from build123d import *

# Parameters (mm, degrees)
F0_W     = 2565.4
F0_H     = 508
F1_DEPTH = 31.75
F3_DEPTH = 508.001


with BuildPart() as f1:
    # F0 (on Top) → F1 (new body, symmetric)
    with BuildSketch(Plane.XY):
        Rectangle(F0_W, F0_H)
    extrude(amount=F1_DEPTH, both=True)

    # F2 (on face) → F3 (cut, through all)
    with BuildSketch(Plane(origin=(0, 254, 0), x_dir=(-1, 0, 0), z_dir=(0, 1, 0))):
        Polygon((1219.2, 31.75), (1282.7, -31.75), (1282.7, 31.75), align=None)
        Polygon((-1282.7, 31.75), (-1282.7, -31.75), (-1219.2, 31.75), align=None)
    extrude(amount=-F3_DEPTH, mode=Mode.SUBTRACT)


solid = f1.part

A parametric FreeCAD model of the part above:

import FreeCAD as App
import Part
import Sketcher

V = App.Vector
Q = App.Units.Quantity

doc = App.newDocument("Part")
params = doc.addObject("Spreadsheet::Sheet", "Params")
for row, (alias, value) in enumerate([
    ("sketch1_width", "101 in"),
    ("sketch1_height", "20 in"),
    ("pad1_length", "2.5 in"),
    ("sketch2_width", "2.5 in"),
], start=1):
    params.set(f"A{row}", alias)
    params.set(f"B{row}", "=" + value)
    params.setAlias(f"B{row}", alias)

body = doc.addObject("PartDesign::Body", "Body")

# Sketch on XY plane
sketch1 = body.newObject("Sketcher::SketchObject", "Sketch")
sketch1.AttachmentSupport = (doc.getObject("XY_Plane"), [""])
sketch1.MapMode = "FlatFace"
sketch1.addGeometry([
    Part.LineSegment(V(-1283, 254, 0), V(-1283, -254, 0)),
    Part.LineSegment(V(-1283, -254, 0), V(1283, -254, 0)),
    Part.LineSegment(V(1283, -254, 0), V(1283, 254, 0)),
    Part.LineSegment(V(1283, 254, 0), V(-1283, 254, 0)),
], False)
sketch1.addConstraint([
    Sketcher.Constraint("Coincident", 0, 2, 1, 1),
    Sketcher.Constraint("Coincident", 1, 2, 2, 1),
    Sketcher.Constraint("Coincident", 2, 2, 3, 1),
    Sketcher.Constraint("Coincident", 3, 2, 0, 1),
    Sketcher.Constraint("Vertical", 0),
    Sketcher.Constraint("Horizontal", 1),
    Sketcher.Constraint("Vertical", 2),
    Sketcher.Constraint("Horizontal", 3),
    Sketcher.Constraint("Symmetric", 0, 2, 2, 2, -1, 1),
    Sketcher.Constraint("DistanceX", 1, 1, 1, 2, Q("101 in")),
    Sketcher.Constraint("DistanceY", 0, 2, 0, 1, Q("20 in")),
])
sketch1.setExpression("Constraints[9]", "Params.sketch1_width")
sketch1.setExpression("Constraints[10]", "Params.sketch1_height")
pad1 = body.newObject("PartDesign::Pad", "Pad")
pad1.Profile = sketch1
pad1.setExpression("Length", "Params.pad1_length")
pad1.Midplane = True

# Sketch on XZ plane
sketch2 = body.newObject("Sketcher::SketchObject", "Sketch001")
sketch2.AttachmentSupport = (doc.getObject("XZ_Plane"), [""])
sketch2.MapMode = "FlatFace"
sketch2.AttachmentOffset = App.Placement(V(0, 0, -10 * 25.4), App.Rotation())
sketch2.addGeometry([
    Part.LineSegment(V(-1219, 32, 0), V(-1283, -32, 0)),  # 0
    Part.LineSegment(V(-1283, -32, 0), V(-1283, 32, 0)),  # 1
    Part.LineSegment(V(-1283, 32, 0), V(-1219, 32, 0)),  # 2
    Part.LineSegment(V(1283, 32, 0), V(1283, -32, 0)),  # 3
    Part.LineSegment(V(1283, -32, 0), V(1219, 32, 0)),  # 4
    Part.LineSegment(V(1219, 32, 0), V(1283, 32, 0)),  # 5
], False)
sketch2.addConstraint([
    Sketcher.Constraint("Coincident", 0, 2, 1, 1),
    Sketcher.Constraint("Coincident", 1, 2, 2, 1),
    Sketcher.Constraint("Coincident", 2, 2, 0, 1),
    Sketcher.Constraint("Coincident", 3, 2, 4, 1),
    Sketcher.Constraint("Coincident", 4, 2, 5, 1),
    Sketcher.Constraint("Coincident", 5, 2, 3, 1),
    Sketcher.Constraint("Vertical", 1),
    Sketcher.Constraint("Horizontal", 2),
    Sketcher.Constraint("Vertical", 3),
    Sketcher.Constraint("Horizontal", 5),
    Sketcher.Constraint("Symmetric", 1, 2, 3, 2, -1, 1),
    Sketcher.Constraint("Symmetric", 2, 2, 4, 2, -2),
    Sketcher.Constraint("Perpendicular", 0, 4),
    Sketcher.Constraint("Horizontal", 0, 2, 3, 2),
    Sketcher.Constraint("DistanceX", 2, 1, 2, 2, Q("2.5 in")),
    Sketcher.Constraint("DistanceX", 2, 2, -1, 1, Q("48 in")),
])
sketch2.setExpression("Constraints[14]", "Params.sketch2_width")
pocket1 = body.newObject("PartDesign::Pocket", "Pocket")
pocket1.Profile = sketch2
pocket1.Type = "ThroughAll"
pocket1.Reversed = True

doc.recompute()
